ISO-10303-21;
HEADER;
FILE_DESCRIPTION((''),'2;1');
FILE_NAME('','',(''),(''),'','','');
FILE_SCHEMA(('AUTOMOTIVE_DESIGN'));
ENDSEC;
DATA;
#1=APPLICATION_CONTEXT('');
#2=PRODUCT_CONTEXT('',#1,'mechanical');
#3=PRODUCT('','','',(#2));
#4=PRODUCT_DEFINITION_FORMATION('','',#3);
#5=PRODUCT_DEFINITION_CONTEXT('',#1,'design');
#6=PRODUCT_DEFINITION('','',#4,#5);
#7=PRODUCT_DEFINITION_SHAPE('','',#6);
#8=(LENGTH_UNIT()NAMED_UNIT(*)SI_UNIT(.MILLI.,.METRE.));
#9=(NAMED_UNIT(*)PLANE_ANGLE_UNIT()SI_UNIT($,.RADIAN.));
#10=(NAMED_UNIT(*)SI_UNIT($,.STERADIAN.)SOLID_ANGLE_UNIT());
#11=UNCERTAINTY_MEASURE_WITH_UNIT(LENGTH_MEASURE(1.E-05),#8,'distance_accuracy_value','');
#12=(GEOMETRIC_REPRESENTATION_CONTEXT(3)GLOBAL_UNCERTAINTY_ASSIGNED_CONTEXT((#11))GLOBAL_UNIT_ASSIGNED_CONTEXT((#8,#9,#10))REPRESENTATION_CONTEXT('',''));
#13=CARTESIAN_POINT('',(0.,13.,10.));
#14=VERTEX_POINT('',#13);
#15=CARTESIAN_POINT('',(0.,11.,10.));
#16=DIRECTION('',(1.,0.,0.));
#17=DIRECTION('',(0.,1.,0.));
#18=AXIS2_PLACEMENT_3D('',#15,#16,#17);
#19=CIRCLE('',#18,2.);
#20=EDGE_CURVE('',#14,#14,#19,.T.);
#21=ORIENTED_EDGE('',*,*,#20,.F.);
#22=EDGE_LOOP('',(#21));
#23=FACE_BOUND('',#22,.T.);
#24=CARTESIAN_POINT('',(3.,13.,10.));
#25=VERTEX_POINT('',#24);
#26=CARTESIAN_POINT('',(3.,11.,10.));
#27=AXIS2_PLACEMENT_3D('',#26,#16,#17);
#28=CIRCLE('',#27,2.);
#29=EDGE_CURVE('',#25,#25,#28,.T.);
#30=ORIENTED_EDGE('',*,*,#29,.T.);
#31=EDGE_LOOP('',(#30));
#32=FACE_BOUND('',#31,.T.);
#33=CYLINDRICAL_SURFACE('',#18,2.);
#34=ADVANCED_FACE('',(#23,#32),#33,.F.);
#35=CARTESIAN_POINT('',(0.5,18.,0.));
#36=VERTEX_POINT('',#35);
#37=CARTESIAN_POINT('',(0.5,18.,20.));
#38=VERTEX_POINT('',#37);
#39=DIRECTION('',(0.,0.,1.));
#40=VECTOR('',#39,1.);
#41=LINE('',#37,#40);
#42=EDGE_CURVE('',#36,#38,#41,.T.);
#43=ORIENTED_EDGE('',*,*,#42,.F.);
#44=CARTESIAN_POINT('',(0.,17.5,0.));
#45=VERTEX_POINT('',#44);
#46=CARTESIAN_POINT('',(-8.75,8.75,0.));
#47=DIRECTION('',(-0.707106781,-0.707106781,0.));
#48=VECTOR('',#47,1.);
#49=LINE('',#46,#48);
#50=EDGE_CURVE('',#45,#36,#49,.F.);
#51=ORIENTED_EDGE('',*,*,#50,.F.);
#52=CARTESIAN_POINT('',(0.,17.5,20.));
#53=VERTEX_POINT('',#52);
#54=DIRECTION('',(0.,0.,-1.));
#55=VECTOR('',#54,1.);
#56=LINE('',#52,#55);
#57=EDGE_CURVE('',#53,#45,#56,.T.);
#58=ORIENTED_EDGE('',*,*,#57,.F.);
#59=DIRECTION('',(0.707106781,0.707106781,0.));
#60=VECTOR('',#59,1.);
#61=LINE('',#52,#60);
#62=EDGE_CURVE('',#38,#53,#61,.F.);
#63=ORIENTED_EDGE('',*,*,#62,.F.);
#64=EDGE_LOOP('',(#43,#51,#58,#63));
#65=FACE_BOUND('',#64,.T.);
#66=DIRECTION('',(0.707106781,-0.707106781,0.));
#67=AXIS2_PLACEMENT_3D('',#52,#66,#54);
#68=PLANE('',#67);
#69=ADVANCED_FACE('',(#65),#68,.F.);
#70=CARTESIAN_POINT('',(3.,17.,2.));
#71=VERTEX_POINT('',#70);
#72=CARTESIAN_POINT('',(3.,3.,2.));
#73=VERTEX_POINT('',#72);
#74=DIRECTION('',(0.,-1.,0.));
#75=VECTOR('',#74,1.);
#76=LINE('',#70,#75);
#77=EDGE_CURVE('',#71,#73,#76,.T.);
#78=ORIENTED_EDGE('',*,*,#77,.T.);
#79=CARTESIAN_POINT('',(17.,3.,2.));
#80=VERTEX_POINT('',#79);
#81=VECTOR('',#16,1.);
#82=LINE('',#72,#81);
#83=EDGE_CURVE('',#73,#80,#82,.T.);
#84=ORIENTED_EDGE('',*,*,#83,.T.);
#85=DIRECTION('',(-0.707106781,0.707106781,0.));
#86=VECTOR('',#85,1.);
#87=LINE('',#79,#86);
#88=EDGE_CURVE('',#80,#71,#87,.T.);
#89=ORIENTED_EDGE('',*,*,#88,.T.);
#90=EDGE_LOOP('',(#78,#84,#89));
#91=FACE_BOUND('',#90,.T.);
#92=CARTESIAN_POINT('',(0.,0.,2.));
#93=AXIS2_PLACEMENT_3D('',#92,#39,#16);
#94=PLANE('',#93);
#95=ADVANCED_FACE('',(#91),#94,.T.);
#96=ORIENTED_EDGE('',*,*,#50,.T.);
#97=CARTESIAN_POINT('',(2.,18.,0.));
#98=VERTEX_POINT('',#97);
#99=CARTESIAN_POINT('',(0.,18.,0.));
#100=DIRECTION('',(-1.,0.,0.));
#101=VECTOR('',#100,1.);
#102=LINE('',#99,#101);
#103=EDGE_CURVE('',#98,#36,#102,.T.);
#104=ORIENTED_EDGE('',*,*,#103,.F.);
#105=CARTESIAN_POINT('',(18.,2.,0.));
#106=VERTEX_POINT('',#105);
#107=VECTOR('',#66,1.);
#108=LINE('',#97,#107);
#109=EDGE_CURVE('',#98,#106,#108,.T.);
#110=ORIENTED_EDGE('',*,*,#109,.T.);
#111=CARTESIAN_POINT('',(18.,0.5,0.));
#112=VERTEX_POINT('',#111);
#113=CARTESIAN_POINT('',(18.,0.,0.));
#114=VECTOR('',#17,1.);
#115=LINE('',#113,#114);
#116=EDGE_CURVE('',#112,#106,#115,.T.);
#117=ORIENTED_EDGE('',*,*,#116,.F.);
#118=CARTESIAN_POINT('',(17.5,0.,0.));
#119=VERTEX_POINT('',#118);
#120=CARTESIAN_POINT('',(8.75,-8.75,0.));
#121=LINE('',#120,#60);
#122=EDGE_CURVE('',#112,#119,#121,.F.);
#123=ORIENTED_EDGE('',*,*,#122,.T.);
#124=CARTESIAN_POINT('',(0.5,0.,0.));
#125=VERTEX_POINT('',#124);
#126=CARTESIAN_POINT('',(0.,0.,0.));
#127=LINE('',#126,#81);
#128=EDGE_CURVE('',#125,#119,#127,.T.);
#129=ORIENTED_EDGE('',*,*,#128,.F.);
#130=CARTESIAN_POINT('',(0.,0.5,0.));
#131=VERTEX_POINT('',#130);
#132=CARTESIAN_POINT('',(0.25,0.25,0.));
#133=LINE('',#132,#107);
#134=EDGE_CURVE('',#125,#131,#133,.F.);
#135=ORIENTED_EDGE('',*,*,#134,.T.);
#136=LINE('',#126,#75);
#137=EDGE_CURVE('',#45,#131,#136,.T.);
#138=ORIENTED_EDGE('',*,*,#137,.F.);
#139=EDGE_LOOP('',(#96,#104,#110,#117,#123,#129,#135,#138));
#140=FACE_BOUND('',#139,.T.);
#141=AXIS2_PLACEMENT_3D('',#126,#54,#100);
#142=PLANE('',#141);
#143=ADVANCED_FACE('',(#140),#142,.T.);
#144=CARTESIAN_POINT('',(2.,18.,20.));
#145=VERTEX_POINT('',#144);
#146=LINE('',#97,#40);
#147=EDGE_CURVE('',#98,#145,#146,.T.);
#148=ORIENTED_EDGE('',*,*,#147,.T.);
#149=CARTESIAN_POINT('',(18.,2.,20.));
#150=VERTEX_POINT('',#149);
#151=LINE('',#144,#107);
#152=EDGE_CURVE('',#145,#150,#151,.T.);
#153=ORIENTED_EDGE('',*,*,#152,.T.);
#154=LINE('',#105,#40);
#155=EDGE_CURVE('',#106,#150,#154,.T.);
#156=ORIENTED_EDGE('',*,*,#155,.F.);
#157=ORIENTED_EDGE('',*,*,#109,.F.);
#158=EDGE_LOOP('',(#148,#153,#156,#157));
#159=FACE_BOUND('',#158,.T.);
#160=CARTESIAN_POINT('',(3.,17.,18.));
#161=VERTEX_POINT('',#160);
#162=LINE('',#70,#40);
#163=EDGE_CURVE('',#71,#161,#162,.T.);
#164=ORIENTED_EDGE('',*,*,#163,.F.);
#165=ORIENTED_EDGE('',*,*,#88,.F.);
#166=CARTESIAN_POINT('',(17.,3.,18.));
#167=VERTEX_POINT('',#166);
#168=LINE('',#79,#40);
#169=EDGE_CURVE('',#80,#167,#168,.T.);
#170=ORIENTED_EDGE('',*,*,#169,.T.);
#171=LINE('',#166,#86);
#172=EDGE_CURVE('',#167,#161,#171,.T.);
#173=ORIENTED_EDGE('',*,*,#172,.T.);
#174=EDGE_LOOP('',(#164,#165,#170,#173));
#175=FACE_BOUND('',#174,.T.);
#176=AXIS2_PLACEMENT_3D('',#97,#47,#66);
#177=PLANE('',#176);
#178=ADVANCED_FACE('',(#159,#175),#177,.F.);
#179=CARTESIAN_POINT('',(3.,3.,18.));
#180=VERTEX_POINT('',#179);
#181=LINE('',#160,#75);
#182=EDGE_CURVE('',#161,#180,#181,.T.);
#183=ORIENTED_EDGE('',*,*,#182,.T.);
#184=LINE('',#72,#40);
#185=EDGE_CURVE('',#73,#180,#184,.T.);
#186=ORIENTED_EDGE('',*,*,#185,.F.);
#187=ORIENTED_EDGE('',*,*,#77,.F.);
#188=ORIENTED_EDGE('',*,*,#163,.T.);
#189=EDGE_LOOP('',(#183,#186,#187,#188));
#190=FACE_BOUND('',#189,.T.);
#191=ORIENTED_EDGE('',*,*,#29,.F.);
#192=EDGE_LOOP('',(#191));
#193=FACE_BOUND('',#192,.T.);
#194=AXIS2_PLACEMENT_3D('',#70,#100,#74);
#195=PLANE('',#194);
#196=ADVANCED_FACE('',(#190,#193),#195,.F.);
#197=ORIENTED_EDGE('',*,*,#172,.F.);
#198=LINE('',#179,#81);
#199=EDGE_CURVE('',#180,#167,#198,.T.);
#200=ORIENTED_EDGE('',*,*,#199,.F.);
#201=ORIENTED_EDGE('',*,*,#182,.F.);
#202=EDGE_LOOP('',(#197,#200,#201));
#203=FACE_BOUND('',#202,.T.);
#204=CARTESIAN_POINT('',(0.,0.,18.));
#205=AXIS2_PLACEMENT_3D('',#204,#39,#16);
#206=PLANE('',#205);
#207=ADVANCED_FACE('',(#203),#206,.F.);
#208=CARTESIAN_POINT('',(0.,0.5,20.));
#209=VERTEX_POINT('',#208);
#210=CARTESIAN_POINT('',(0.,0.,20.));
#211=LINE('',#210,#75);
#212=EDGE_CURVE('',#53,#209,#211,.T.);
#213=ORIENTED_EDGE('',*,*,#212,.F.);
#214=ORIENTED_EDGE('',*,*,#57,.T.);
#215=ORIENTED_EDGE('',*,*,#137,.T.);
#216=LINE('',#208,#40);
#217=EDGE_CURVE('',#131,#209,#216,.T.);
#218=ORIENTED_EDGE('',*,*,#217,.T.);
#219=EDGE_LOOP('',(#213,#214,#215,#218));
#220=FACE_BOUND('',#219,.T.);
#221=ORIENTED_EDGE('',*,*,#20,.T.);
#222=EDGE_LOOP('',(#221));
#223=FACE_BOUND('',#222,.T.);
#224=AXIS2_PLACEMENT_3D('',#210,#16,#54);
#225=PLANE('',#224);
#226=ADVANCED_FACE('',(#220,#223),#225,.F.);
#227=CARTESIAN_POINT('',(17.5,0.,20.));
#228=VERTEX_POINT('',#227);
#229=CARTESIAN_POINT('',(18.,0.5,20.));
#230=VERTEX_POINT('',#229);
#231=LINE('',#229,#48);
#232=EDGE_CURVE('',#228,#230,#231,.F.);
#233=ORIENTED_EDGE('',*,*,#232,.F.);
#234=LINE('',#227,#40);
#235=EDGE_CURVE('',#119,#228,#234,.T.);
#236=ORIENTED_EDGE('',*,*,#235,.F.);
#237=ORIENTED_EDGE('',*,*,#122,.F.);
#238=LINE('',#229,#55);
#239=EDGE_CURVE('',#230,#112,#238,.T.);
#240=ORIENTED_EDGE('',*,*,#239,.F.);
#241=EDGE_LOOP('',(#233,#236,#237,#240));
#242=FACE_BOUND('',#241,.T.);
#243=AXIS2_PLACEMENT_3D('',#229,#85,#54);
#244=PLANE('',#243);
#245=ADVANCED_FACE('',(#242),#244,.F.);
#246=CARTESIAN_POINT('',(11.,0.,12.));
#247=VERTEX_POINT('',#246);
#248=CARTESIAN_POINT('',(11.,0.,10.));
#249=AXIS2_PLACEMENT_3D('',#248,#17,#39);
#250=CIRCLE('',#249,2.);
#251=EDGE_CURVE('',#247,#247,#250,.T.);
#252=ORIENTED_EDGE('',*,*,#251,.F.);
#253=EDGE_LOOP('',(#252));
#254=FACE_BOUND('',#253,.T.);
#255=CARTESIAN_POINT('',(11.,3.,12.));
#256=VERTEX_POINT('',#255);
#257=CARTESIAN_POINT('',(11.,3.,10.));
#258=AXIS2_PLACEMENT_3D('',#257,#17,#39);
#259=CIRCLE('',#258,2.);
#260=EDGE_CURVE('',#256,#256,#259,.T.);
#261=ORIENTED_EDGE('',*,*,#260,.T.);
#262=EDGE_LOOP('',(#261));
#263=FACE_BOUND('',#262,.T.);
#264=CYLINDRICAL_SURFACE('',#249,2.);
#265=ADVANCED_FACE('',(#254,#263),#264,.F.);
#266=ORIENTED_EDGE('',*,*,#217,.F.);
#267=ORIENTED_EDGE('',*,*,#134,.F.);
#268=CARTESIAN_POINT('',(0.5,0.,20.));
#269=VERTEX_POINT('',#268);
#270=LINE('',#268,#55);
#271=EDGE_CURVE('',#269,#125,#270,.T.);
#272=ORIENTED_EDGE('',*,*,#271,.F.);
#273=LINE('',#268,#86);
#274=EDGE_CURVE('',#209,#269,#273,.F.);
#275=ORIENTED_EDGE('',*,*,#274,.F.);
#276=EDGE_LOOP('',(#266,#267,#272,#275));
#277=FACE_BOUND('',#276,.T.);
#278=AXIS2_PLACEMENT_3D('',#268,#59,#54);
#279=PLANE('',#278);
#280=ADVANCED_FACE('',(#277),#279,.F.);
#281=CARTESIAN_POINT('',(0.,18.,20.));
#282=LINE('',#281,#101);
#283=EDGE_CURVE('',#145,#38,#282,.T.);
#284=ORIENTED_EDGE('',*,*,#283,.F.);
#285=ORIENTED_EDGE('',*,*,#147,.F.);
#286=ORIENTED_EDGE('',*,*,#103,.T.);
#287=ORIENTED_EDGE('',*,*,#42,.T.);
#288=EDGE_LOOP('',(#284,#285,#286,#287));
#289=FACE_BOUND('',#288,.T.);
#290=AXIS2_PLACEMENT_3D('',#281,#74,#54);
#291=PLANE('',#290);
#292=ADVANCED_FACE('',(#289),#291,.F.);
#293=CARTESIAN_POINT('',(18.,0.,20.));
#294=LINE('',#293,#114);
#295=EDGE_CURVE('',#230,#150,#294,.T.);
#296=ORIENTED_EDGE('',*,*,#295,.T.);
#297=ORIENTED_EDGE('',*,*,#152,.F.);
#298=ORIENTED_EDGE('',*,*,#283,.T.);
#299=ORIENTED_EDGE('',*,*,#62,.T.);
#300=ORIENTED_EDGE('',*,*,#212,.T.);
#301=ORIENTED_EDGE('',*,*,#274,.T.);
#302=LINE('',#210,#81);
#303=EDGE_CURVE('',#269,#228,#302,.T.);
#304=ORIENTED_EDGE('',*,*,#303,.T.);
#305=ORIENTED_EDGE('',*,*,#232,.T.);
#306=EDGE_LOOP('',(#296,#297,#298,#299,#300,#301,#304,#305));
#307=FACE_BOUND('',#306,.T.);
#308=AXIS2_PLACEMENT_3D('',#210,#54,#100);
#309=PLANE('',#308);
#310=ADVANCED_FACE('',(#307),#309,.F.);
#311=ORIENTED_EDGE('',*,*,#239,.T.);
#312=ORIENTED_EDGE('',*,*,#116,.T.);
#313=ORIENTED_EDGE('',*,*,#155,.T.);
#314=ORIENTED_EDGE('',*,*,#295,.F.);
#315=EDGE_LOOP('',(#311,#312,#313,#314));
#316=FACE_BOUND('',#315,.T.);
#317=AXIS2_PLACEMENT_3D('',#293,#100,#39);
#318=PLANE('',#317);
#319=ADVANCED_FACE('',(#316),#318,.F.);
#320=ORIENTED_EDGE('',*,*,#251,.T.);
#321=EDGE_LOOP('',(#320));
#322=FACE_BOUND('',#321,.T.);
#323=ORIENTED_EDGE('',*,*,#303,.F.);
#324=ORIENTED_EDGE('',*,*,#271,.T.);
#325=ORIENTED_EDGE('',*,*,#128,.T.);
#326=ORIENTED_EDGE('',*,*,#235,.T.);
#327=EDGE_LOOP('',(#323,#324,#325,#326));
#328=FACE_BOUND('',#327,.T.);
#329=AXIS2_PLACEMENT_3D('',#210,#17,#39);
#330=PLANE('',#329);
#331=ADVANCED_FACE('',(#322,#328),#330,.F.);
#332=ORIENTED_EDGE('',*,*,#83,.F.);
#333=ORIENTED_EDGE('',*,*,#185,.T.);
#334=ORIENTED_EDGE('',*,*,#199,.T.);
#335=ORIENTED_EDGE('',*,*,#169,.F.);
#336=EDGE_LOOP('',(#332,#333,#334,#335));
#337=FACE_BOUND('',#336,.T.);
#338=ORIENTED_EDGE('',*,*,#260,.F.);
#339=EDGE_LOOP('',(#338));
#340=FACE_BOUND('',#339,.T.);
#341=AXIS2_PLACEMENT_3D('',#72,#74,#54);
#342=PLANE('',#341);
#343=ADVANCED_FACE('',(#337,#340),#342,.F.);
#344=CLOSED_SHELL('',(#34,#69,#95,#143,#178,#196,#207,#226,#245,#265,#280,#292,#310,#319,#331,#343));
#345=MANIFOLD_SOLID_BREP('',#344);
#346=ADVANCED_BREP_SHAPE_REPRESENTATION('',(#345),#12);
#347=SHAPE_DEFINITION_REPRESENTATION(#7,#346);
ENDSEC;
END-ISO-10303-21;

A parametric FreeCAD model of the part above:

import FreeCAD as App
import Part
import Sketcher


def edges_at(feature, points):
    """Names of the edges that pass closest to the given points."""
    edges = feature.Shape.Edges
    near = lambda p: min(range(len(edges)), key=lambda i: edges[i].distToShape(Part.Vertex(*p))[0])
    return sorted({f"Edge{near(p) + 1}" for p in points})

doc = App.newDocument("Part")
body = doc.addObject("PartDesign::Body", "Body")

sketch1 = doc.addObject("Sketcher::SketchObject", "Sketch")
body.addObject(sketch1)
sketch1.AttachmentSupport = (doc.XY_Plane, [""])
sketch1.MapMode = "FlatFace"
sketch1.addGeometry([
    Part.LineSegment(App.Vector(0, 18, 0), App.Vector(0, 0, 0)),
    Part.LineSegment(App.Vector(0, 0, 0), App.Vector(18, 0, 0)),
    Part.LineSegment(App.Vector(18, 0, 0), App.Vector(18, 18, 0)),
    Part.LineSegment(App.Vector(18, 18, 0), App.Vector(0, 18, 0)),
], False)
sketch1.addConstraint([
    Sketcher.Constraint("Coincident", 0, 2, 1, 1),
    Sketcher.Constraint("Coincident", 1, 2, 2, 1),
    Sketcher.Constraint("Coincident", 2, 2, 3, 1),
    Sketcher.Constraint("Coincident", 3, 2, 0, 1),
    Sketcher.Constraint("Vertical", 0),
    Sketcher.Constraint("Horizontal", 1),
    Sketcher.Constraint("Vertical", 2),
    Sketcher.Constraint("Horizontal", 3),
    Sketcher.Constraint("Coincident", 0, 2, -1, 1),
    Sketcher.Constraint("Equal", 3, 0),
    Sketcher.Constraint("DistanceX", 1, 1, 1, 2, 18.0),
])
pad1 = doc.addObject("PartDesign::Pad", "Pad")
body.addObject(pad1)
pad1.Profile = sketch1
pad1.Length = 20

sketch2 = doc.addObject("Sketcher::SketchObject", "Sketch001")
body.addObject(sketch2)
sketch2.AttachmentSupport = (doc.XY_Plane, [""])
sketch2.MapMode = "FlatFace"
sketch2.AttachmentOffset = App.Placement(App.Vector(0, 0, 20), App.Rotation())
sketch2.addGeometry([
    Part.LineSegment(App.Vector(18, 18, 0), App.Vector(2, 18, 0)),
    Part.LineSegment(App.Vector(2, 18, 0), App.Vector(18, 2, 0)),
    Part.LineSegment(App.Vector(18, 2, 0), App.Vector(18, 18, 0)),
], False)
sketch2.addConstraint([
    Sketcher.Constraint("Coincident", 0, 2, 1, 1),
    Sketcher.Constraint("Coincident", 1, 2, 2, 1),
    Sketcher.Constraint("Coincident", 2, 2, 0, 1),
    Sketcher.Constraint("Horizontal", 0),
    Sketcher.Constraint("Vertical", 2),
    Sketcher.Constraint("Equal", 0, 2),
    Sketcher.Constraint("DistanceX", 0, 2, 0, 1, 16.0),
    Sketcher.Constraint("DistanceX", -1, 1, 0, 2, 2.0),
    Sketcher.Constraint("DistanceY", -1, 1, 0, 2, 18.0),
])
pocket1 = doc.addObject("PartDesign::Pocket", "Pocket")
body.addObject(pocket1)
pocket1.Profile = sketch2
pocket1.Length = 20

sketch3 = doc.addObject("Sketcher::SketchObject", "Sketch002")
body.addObject(sketch3)
sketch3.AttachmentSupport = (doc.XY_Plane, [""])
sketch3.MapMode = "FlatFace"
sketch3.AttachmentOffset = App.Placement(App.Vector(0, 0, 18), App.Rotation())
sketch3.addGeometry([
    Part.LineSegment(App.Vector(3, 17, 0), App.Vector(3, 3, 0)),
    Part.LineSegment(App.Vector(3, 3, 0), App.Vector(17, 3, 0)),
    Part.LineSegment(App.Vector(17, 3, 0), App.Vector(3, 17, 0)),
], False)
sketch3.addConstraint([
    Sketcher.Constraint("Coincident", 0, 2, 1, 1),
    Sketcher.Constraint("Coincident", 1, 2, 2, 1),
    Sketcher.Constraint("Coincident", 2, 2, 0, 1),
    Sketcher.Constraint("Vertical", 0),
    Sketcher.Constraint("Horizontal", 1),
    Sketcher.Constraint("Equal", 1, 0),
    Sketcher.Constraint("DistanceX", 1, 1, 1, 2, 14.0),
    Sketcher.Constraint("DistanceX", -1, 1, 0, 2, 3.0),
    Sketcher.Constraint("DistanceY", -1, 1, 0, 2, 3.0),
])
pocket2 = doc.addObject("PartDesign::Pocket", "Pocket001")
body.addObject(pocket2)
pocket2.Profile = sketch3
pocket2.Length = 16
doc.recompute()

chamfer = doc.addObject("PartDesign::Chamfer", "Chamfer")
body.addObject(chamfer)
chamfer.Base = (pocket2, edges_at(pocket2, [(0, 18, 10), (18, 0, 10), (0, 0, 10)]))
chamfer.Size = 0.5

sketch4 = doc.addObject("Sketcher::SketchObject", "Sketch003")
body.addObject(sketch4)
sketch4.AttachmentSupport = (doc.YZ_Plane, [""])
sketch4.MapMode = "FlatFace"
sketch4.AttachmentOffset = App.Placement(App.Vector(0, 0, 3), App.Rotation())
sketch4.addGeometry(Part.Circle(App.Vector(11, 10, 0), App.Vector(0, 0, 1), 2), False)
sketch4.addConstraint([
    Sketcher.Constraint("Diameter", 0, 4.0),
    Sketcher.Constraint("DistanceX", -1, 1, 0, 3, 11.0),
    Sketcher.Constraint("DistanceY", -1, 1, 0, 3, 10.0),
])
pocket3 = doc.addObject("PartDesign::Pocket", "Pocket002")
body.addObject(pocket3)
pocket3.Profile = sketch4
pocket3.Type = "ThroughAll"

sketch5 = doc.addObject("Sketcher::SketchObject", "Sketch004")
body.addObject(sketch5)
sketch5.AttachmentSupport = (doc.XZ_Plane, [""])
sketch5.MapMode = "FlatFace"
sketch5.AttachmentOffset = App.Placement(App.Vector(0, 0, -3), App.Rotation())
sketch5.addGeometry(Part.Circle(App.Vector(11, 10, 0), App.Vector(0, 0, 1), 2), False)
sketch5.addConstraint([
    Sketcher.Constraint("Diameter", 0, 4.0),
    Sketcher.Constraint("DistanceX", -1, 1, 0, 3, 11.0),
    Sketcher.Constraint("DistanceY", -1, 1, 0, 3, 10.0),
])
pocket4 = doc.addObject("PartDesign::Pocket", "Pocket003")
body.addObject(pocket4)
pocket4.Profile = sketch5
pocket4.Type = "ThroughAll"
pocket4.Reversed = True

doc.recompute()
